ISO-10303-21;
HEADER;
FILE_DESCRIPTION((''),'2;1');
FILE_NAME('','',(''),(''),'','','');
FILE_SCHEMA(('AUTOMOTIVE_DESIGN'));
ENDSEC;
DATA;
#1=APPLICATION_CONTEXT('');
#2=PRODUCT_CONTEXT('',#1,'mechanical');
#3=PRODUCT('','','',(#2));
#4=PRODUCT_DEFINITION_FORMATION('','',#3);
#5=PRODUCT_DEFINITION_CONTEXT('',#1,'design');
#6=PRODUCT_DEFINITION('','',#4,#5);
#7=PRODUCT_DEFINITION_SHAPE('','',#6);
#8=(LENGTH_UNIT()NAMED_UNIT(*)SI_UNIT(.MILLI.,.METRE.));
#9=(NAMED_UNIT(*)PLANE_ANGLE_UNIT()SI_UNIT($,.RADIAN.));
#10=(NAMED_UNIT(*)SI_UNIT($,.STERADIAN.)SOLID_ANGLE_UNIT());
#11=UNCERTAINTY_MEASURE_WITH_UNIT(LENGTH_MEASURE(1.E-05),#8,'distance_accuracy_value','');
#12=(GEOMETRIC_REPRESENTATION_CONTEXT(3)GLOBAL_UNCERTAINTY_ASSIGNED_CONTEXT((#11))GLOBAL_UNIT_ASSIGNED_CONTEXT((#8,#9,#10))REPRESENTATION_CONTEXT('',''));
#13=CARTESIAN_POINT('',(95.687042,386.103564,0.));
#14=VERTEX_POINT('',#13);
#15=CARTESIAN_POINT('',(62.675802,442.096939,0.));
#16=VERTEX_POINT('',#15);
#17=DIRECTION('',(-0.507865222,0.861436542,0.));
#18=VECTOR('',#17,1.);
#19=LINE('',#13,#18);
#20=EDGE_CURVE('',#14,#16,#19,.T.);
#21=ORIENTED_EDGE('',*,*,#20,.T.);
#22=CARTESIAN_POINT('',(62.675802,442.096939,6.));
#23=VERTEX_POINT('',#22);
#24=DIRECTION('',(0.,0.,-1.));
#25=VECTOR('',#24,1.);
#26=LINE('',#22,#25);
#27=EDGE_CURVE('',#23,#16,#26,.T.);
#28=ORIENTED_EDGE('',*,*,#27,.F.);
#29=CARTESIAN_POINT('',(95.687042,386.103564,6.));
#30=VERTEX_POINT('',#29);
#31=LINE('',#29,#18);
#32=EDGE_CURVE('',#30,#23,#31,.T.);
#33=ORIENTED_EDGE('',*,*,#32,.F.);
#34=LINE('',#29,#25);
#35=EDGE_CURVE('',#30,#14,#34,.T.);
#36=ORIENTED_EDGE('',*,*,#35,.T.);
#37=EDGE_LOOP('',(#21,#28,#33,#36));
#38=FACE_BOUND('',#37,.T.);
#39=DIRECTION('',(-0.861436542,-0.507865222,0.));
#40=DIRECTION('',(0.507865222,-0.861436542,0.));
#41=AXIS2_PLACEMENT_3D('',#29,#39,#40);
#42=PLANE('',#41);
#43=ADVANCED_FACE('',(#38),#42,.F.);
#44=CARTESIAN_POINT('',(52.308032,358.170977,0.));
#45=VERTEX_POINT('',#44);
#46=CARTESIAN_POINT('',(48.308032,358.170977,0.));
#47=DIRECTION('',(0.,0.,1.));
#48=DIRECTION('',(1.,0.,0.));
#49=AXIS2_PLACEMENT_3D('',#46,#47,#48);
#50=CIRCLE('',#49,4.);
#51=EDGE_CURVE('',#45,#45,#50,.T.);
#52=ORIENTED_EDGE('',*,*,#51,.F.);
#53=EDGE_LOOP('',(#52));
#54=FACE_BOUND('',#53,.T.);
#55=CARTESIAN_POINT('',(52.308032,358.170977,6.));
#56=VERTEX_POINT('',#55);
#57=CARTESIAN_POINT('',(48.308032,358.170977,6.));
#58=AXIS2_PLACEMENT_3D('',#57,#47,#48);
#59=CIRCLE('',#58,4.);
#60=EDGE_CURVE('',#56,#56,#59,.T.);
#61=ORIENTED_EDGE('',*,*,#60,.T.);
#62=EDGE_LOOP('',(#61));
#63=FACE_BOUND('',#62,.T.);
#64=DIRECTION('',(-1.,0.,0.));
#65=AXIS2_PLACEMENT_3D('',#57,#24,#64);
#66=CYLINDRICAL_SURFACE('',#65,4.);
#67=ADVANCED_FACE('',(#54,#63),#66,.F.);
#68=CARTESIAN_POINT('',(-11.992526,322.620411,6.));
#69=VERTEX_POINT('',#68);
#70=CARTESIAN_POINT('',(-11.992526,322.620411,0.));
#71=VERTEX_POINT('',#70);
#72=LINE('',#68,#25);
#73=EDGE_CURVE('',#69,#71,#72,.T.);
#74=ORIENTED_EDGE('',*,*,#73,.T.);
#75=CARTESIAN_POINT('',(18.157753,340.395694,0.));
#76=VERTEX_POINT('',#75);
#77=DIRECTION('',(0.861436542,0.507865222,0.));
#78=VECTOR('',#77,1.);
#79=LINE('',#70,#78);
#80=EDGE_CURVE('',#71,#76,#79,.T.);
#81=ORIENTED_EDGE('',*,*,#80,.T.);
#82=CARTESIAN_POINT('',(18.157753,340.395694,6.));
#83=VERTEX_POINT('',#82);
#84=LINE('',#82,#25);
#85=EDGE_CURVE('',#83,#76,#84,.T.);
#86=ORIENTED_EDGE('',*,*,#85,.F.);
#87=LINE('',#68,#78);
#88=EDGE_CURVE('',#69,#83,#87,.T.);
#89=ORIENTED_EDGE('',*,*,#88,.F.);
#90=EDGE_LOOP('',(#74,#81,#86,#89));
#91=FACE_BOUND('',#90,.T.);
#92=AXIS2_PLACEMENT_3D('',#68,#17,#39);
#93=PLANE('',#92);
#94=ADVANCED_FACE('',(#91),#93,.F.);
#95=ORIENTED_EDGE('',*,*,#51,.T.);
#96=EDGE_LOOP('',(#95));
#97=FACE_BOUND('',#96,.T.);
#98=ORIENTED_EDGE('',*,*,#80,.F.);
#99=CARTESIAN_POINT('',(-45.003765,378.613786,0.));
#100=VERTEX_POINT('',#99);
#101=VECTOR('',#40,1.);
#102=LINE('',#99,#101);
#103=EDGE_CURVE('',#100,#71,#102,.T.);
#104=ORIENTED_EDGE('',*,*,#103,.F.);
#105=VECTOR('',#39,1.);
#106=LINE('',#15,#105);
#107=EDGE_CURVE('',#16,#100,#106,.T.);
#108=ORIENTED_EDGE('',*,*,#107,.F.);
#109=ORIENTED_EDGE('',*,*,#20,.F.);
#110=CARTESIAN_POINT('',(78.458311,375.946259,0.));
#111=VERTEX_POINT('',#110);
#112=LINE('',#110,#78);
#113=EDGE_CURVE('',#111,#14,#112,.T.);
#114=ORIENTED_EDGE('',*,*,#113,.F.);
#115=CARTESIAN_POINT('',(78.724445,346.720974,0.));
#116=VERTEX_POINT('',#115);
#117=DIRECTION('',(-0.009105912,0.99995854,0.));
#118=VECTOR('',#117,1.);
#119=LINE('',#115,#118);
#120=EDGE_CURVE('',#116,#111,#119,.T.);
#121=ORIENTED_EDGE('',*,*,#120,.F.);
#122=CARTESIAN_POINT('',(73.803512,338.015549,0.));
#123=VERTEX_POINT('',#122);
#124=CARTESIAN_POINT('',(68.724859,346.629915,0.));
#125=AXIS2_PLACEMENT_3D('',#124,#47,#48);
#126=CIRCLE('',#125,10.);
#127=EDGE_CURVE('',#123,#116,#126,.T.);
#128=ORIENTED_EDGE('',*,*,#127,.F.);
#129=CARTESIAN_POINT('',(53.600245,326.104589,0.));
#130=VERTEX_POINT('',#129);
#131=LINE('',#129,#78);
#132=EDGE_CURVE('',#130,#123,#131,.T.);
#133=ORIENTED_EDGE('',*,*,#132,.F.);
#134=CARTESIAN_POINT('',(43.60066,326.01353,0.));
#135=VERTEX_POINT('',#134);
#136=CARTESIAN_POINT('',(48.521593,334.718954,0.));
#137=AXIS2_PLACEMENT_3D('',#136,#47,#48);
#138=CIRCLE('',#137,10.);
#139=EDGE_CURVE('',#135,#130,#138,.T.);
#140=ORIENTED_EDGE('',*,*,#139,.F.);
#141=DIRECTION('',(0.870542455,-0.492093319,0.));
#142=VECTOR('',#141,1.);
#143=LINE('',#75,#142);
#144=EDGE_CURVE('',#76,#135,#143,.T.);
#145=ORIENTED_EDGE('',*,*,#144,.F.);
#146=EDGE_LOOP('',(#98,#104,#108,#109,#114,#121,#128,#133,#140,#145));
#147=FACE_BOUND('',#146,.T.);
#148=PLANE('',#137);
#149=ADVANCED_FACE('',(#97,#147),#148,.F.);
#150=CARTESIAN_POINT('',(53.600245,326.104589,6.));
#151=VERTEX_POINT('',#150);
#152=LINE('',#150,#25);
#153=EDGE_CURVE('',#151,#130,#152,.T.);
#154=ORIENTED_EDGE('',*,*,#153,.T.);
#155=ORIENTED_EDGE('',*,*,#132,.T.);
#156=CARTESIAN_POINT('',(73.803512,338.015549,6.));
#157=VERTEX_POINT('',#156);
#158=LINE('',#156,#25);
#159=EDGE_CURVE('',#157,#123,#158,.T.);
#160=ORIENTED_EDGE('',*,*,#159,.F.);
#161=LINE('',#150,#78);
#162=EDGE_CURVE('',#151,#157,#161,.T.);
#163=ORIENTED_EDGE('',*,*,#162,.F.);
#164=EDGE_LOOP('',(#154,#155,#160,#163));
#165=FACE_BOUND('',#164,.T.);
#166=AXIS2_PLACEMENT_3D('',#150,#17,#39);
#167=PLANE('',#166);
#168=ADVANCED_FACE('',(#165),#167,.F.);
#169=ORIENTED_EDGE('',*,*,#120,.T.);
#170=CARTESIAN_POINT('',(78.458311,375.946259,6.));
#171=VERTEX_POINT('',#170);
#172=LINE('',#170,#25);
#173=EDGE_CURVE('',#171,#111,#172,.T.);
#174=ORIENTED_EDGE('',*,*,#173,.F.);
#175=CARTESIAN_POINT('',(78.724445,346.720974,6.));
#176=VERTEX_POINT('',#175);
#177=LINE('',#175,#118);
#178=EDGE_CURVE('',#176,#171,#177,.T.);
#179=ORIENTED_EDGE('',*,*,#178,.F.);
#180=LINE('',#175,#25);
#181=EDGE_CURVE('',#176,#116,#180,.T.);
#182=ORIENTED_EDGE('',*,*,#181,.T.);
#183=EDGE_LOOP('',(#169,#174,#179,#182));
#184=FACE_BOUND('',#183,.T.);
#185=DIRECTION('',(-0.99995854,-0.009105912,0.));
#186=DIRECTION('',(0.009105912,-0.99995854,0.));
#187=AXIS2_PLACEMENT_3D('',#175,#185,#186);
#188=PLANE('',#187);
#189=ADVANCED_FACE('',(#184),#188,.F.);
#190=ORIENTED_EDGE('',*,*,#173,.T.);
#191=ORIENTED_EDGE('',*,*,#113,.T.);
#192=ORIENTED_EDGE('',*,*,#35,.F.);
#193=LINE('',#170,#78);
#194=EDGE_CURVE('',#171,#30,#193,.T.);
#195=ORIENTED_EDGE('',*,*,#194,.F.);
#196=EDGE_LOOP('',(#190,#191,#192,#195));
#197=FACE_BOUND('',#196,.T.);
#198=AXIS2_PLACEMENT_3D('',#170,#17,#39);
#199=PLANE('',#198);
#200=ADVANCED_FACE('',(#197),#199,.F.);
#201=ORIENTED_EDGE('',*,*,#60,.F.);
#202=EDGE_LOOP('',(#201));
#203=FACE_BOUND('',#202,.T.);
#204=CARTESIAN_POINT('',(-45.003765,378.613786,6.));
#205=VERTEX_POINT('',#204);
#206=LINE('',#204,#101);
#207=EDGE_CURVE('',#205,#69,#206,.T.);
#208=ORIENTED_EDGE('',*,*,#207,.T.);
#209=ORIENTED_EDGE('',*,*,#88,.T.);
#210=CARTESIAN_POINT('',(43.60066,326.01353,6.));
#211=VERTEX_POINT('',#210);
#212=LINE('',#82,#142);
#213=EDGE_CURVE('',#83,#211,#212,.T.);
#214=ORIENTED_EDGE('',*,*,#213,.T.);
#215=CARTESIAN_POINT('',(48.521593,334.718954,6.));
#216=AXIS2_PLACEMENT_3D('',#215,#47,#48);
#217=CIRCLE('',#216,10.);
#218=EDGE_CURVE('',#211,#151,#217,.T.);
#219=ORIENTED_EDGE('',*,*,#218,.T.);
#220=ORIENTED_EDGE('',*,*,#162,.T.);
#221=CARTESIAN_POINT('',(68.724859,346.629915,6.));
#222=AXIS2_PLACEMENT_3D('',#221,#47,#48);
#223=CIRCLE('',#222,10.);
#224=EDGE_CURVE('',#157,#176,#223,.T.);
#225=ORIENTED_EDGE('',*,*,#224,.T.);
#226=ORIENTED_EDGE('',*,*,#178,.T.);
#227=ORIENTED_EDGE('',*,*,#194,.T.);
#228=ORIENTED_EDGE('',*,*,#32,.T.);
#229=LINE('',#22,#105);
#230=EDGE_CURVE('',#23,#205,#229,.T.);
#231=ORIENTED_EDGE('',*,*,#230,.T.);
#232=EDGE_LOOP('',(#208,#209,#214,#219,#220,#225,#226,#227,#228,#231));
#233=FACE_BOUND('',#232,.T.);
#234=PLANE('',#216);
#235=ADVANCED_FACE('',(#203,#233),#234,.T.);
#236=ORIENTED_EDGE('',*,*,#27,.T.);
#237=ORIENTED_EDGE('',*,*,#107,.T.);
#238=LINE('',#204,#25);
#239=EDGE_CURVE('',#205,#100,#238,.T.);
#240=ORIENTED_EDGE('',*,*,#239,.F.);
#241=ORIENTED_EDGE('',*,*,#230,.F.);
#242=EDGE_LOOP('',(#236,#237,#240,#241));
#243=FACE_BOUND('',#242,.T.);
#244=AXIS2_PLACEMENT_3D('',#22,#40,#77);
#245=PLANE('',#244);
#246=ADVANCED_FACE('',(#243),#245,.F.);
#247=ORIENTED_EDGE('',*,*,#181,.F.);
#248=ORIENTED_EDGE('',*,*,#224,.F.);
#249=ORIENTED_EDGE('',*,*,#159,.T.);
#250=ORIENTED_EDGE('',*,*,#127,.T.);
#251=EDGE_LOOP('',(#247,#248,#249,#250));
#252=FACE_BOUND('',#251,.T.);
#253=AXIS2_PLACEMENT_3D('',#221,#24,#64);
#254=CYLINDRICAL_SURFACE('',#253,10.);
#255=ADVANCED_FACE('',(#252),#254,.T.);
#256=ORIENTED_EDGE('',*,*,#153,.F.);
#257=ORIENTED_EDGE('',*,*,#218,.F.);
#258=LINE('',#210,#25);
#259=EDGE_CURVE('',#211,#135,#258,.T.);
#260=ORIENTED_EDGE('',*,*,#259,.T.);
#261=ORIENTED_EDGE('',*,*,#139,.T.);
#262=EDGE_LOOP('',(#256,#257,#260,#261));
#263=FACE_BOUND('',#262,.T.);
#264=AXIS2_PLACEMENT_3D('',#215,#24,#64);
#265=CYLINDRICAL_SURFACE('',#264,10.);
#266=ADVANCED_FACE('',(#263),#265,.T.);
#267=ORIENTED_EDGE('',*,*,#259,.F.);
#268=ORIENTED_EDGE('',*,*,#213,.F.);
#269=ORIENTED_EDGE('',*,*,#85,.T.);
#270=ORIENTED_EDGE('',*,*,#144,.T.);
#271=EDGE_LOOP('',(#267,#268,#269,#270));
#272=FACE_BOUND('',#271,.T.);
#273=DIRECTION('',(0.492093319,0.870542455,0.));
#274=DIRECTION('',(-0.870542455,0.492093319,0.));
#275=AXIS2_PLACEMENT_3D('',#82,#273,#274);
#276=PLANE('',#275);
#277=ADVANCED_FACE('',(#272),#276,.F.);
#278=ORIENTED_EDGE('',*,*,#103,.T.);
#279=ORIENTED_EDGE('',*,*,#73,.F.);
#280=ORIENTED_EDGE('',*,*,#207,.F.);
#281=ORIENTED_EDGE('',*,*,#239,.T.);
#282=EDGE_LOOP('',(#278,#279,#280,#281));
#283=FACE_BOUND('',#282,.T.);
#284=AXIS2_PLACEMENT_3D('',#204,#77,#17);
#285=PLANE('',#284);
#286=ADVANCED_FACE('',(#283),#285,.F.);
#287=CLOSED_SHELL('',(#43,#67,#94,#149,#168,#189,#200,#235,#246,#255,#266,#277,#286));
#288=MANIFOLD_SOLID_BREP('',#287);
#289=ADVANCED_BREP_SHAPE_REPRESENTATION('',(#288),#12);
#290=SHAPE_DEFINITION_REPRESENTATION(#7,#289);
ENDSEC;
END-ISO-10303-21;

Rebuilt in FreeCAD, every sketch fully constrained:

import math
import FreeCAD as App
import Part
import Sketcher
from FreeCAD import Vector
Q = App.Units.Quantity

doc = App.newDocument("Part")
params = doc.addObject("Spreadsheet::Sheet", "Params")
for row, (alias, value) in enumerate([
    ("sketch1_diameter", "8 mm"),
    ("sketch1_radius", "10 mm"),
    ("sketch1_length", "65 mm"),
    ("sketch1_length2", "125 mm"),
    ("sketch1_length3", "35 mm"),
    ("pad1_length", "6 mm"),
], start=1):
    params.set(f"A{row}", alias)
    params.set(f"B{row}", "=" + value)
    params.setAlias(f"B{row}", alias)

body = doc.addObject("PartDesign::Body", "Body")

sketch1 = body.newObject("Sketcher::SketchObject", "Sketch")
sketch1.AttachmentSupport = (doc.getObject("XY_Plane"), [""])
sketch1.MapMode = "FlatFace"
sketch1.addGeometry(Part.LineSegment(Vector(95.687042, 386.103564, 0), Vector(62.675802, 442.096939, 0)), False)
sketch1.addGeometry(Part.LineSegment(Vector(62.675802, 442.096939, 0), Vector(-45.003765, 378.613786, 0)), False)
sketch1.addGeometry(Part.LineSegment(Vector(-45.003765, 378.613786, 0), Vector(-11.992526, 322.620411, 0)), False)
sketch1.addGeometry(Part.LineSegment(Vector(-11.992526, 322.620411, 0), Vector(18.157753, 340.395694, 0)), False)
sketch1.addGeometry(Part.LineSegment(Vector(18.157753, 340.395694, 0), Vector(43.60066, 326.01353, 0)), False)
sketch1.addGeometry(Part.ArcOfCircle(Part.Circle(Vector(48.521593, 334.718954, 0), Vector(0, 0, 1), 10), math.radians(-119.478262), math.radians(-59.478262)), False)
sketch1.addGeometry(Part.LineSegment(Vector(53.600245, 326.104589, 0), Vector(73.803512, 338.015549, 0)), False)
sketch1.addGeometry(Part.ArcOfCircle(Part.Circle(Vector(68.724859, 346.629915, 0), Vector(0, 0, 1), 10), math.radians(-59.478262), math.radians(0.521738)), False)
sketch1.addGeometry(Part.LineSegment(Vector(78.724445, 346.720974, 0), Vector(78.458311, 375.946259, 0)), False)
sketch1.addGeometry(Part.LineSegment(Vector(78.458311, 375.946259, 0), Vector(95.687042, 386.103564, 0)), False)
sketch1.addGeometry(Part.Circle(Vector(48.308032, 358.170977, 0), Vector(0, 0, 1), 4), False)
sketch1.addConstraint(Sketcher.Constraint("Coincident", 0, 2, 1, 1))
sketch1.addConstraint(Sketcher.Constraint("Coincident", 1, 2, 2, 1))
sketch1.addConstraint(Sketcher.Constraint("Coincident", 2, 2, 3, 1))
sketch1.addConstraint(Sketcher.Constraint("Coincident", 3, 2, 4, 1))
sketch1.addConstraint(Sketcher.Constraint("Tangent", 4, 2, 5, 1))
sketch1.addConstraint(Sketcher.Constraint("Tangent", 5, 2, 6, 1))
sketch1.addConstraint(Sketcher.Constraint("Tangent", 6, 2, 7, 1))
sketch1.addConstraint(Sketcher.Constraint("Tangent", 7, 2, 8, 1))
sketch1.addConstraint(Sketcher.Constraint("Coincident", 8, 2, 9, 1))
sketch1.addConstraint(Sketcher.Constraint("Coincident", 9, 2, 0, 1))
sketch1.addConstraint(Sketcher.Constraint("Equal", 5, 7))
sketch1.addConstraint(Sketcher.Constraint("Perpendicular", 0, 1))
sketch1.addConstraint(Sketcher.Constraint("Perpendicular", 1, 2))
sketch1.addConstraint(Sketcher.Constraint("Perpendicular", 2, 3))
sketch1.addConstraint(Sketcher.Constraint("Parallel", 3, 6))
sketch1.addConstraint(Sketcher.Constraint("Parallel", 6, 9))
sketch1.addConstraint(Sketcher.Constraint("Equal", 0, 2))
sketch1.addConstraint(Sketcher.Constraint("Equal", 4, 8))
sketch1.addConstraint(Sketcher.Constraint("Diameter", 10, Q("8 mm")))
sketch1.addConstraint(Sketcher.Constraint("Radius", 5, Q("10 mm")))
sketch1.addConstraint(Sketcher.Constraint("Distance", 0, Q("65 mm")))
sketch1.addConstraint(Sketcher.Constraint("Distance", 1, Q("125 mm")))
sketch1.addConstraint(Sketcher.Constraint("Distance", 3, Q("35 mm")))
sketch1.addConstraint(Sketcher.Constraint("Distance", 9, Q("20 mm")))
sketch1.addConstraint(Sketcher.Constraint("DistanceX", 4, 2, 7, 3, Q("25.1242 mm")))
sketch1.addConstraint(Sketcher.Constraint("DistanceX", 5, 2, 7, 2, Q("25.1242 mm")))
sketch1.addConstraint(Sketcher.Constraint("DistanceX", 6, 2, 8, 2, Q("4.654799 mm")))
sketch1.addConstraint(Sketcher.Constraint("DistanceX", -1, 1, 7, 3, Q("68.724859 mm")))
sketch1.addConstraint(Sketcher.Constraint("DistanceX", -1, 1, 10, 3, Q("48.308032 mm")))
sketch1.addConstraint(Sketcher.Constraint("DistanceY", -1, 1, 0, 2, Q("442.096939 mm")))
sketch1.addConstraint(Sketcher.Constraint("DistanceY", 7, 3, 10, 3, Q("11.541062 mm")))
sketch1.setExpression("Constraints[18]", "Params.sketch1_diameter")
sketch1.setExpression("Constraints[19]", "Params.sketch1_radius")
sketch1.setExpression("Constraints[20]", "Params.sketch1_length")
sketch1.setExpression("Constraints[21]", "Params.sketch1_length2")
sketch1.setExpression("Constraints[22]", "Params.sketch1_length3")
pad1 = body.newObject("PartDesign::Pad", "Pad")
pad1.Profile = sketch1
pad1.setExpression("Length", "Params.pad1_length")

doc.recompute()
